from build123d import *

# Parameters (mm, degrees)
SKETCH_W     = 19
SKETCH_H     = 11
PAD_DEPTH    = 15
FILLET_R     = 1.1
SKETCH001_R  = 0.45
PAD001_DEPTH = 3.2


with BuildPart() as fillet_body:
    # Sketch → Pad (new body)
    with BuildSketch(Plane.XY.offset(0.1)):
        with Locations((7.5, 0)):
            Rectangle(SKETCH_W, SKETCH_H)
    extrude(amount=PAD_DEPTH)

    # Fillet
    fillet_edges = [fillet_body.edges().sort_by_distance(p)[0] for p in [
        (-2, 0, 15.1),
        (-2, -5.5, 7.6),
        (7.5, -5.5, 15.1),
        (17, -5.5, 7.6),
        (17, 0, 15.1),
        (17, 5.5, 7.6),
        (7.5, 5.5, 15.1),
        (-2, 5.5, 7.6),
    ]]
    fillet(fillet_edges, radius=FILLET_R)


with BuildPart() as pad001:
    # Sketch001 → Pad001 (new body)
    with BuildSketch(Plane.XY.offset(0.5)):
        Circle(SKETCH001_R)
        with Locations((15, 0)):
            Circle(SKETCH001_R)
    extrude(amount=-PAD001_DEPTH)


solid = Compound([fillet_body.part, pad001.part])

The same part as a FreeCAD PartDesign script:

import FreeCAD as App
import Part
import Sketcher

V = App.Vector
Q = App.Units.Quantity


def edges_at(feature, points):
    """Names of the edges that pass closest to the given points."""
    edges = feature.Shape.Edges
    near = lambda p: min(range(len(edges)), key=lambda i: edges[i].distToShape(Part.Vertex(*p))[0])
    return sorted({f"Edge{near(p) + 1}" for p in points})


def add_polygon(sketch, points):
    """Adds a closed chain of lines whose ends are joined by coincident constraints."""
    first, n = sketch.GeometryCount, len(points)
    for a, b in zip(points, points[1:] + points[:1]):
        sketch.addGeometry(Part.LineSegment(App.Vector(*a, 0), App.Vector(*b, 0)), False)
    for i in range(n):
        sketch.addConstraint(Sketcher.Constraint("Coincident", first + i, 2, first + (i + 1) % n, 1))

doc = App.newDocument("Part")
body = doc.addObject("PartDesign::Body", "Body")

# Sketch on XY plane
sketch1 = body.newObject("Sketcher::SketchObject", "Sketch")
sketch1.AttachmentSupport = (doc.getObject("XY_Plane"), [""])
sketch1.MapMode = "FlatFace"
sketch1.AttachmentOffset = App.Placement(V(0, 0, 0.1), App.Rotation())
add_polygon(sketch1, [(-2, 6), (-2, -6), (17, -6), (17, 6)])  # lines 0-3
sketch1.addConstraint(Sketcher.Constraint("Vertical", 0))
sketch1.addConstraint(Sketcher.Constraint("Horizontal", 1))
sketch1.addConstraint(Sketcher.Constraint("Vertical", 2))
sketch1.addConstraint(Sketcher.Constraint("Horizontal", 3))
sketch1.addConstraint(Sketcher.Constraint("DistanceX", 1, 1, 1, 2, Q("19 mm")))
sketch1.addConstraint(Sketcher.Constraint("DistanceY", 0, 2, 0, 1, Q("11 mm")))
sketch1.addConstraint(Sketcher.Constraint("DistanceX", 0, 2, -1, 1, Q("2 mm")))
sketch1.addConstraint(Sketcher.Constraint("DistanceY", 0, 2, -1, 1, Q("5.5 mm")))
pad1 = body.newObject("PartDesign::Pad", "Pad")
pad1.Profile = sketch1
pad1.Length = 15
doc.recompute()

fillet = body.newObject("PartDesign::Fillet", "Fillet")
fillet.Base = (pad1, edges_at(pad1, [
    (-2, 0, 15.1),
    (-2, -5.5, 7.6),
    (7.5, -5.5, 15.1),
    (17, -5.5, 7.6),
    (17, 0, 15.1),
    (17, 5.5, 7.6),
    (7.5, 5.5, 15.1),
    (-2, 5.5, 7.6),
]))
fillet.Radius = 1.1
body2 = doc.addObject("PartDesign::Body", "Body001")
body2.AllowCompound = True

# Sketch on XY plane
sketch2 = body2.newObject("Sketcher::SketchObject", "Sketch001")
sketch2.AttachmentSupport = (doc.getObject("XY_Plane001"), [""])
sketch2.MapMode = "FlatFace"
sketch2.AttachmentOffset = App.Placement(V(0, 0, 0.5), App.Rotation())
sketch2.addGeometry(Part.Circle(V(0, 0, 0), V(0, 0, 1), 0.45), False)
sketch2.addGeometry(Part.Circle(V(15, 0, 0), V(0, 0, 1), 0.45), False)
sketch2.addConstraint(Sketcher.Constraint("Coincident", 0, 3, -1, 1))
sketch2.addConstraint(Sketcher.Constraint("Equal", 0, 1))
sketch2.addConstraint(Sketcher.Constraint("PointOnObject", 1, 3, -1))
sketch2.addConstraint(Sketcher.Constraint("Diameter", 0, Q("0.9 mm")))
sketch2.addConstraint(Sketcher.Constraint("DistanceX", -1, 1, 1, 3, Q("15 mm")))
pad2 = body2.newObject("PartDesign::Pad", "Pad001")
pad2.Profile = sketch2
pad2.Length = 3.2
pad2.Reversed = True

doc.recompute()
